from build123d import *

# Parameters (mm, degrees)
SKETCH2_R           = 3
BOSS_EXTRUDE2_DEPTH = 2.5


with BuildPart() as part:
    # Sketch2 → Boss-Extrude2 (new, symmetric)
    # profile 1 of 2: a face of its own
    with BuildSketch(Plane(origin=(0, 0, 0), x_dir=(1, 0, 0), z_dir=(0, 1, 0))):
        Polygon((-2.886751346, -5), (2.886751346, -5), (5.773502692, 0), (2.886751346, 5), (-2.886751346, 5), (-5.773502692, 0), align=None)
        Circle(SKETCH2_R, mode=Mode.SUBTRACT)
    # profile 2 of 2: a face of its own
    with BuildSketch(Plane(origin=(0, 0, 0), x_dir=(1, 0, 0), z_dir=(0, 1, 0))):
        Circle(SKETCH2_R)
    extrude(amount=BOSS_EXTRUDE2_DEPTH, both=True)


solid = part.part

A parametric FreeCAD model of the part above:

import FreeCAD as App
import Part
import Sketcher
from FreeCAD import Vector
Q = App.Units.Quantity

doc = App.newDocument("Part")
body = doc.addObject("PartDesign::Body", "Body")

sketch1 = doc.addObject("Sketcher::SketchObject", "Sketch")
body.addObject(sketch1)
sketch1.AttachmentSupport = (doc.XZ_Plane, [""])
sketch1.MapMode = "FlatFace"
sketch1.addGeometry([
    Part.LineSegment(Vector(-3, 5, 0), Vector(3, 5, 0)),
    Part.LineSegment(Vector(3, 5, 0), Vector(6, 0, 0)),
    Part.LineSegment(Vector(6, 0, 0), Vector(3, -5, 0)),
    Part.LineSegment(Vector(3, -5, 0), Vector(-3, -5, 0)),
    Part.LineSegment(Vector(-3, -5, 0), Vector(-6, 0, 0)),
    Part.LineSegment(Vector(-6, 0, 0), Vector(-3, 5, 0)),
], False)
sketch1.addConstraint([
    Sketcher.Constraint("Coincident", 0, 2, 1, 1),
    Sketcher.Constraint("Coincident", 1, 2, 2, 1),
    Sketcher.Constraint("Coincident", 2, 2, 3, 1),
    Sketcher.Constraint("Coincident", 3, 2, 4, 1),
    Sketcher.Constraint("Coincident", 4, 2, 5, 1),
    Sketcher.Constraint("Coincident", 5, 2, 0, 1),
    Sketcher.Constraint("Horizontal", 0),
    Sketcher.Constraint("Horizontal", 3),
    Sketcher.Constraint("Symmetric", 0, 2, 3, 2, -1, 1),
    Sketcher.Constraint("Symmetric", 1, 2, 4, 2, -1, 1),
    Sketcher.Constraint("PointOnObject", 1, 2, -1),
    Sketcher.Constraint("Parallel", 2, 5),
    Sketcher.Constraint("Vertical", 0, 2, 2, 2),
    Sketcher.Constraint("Angle", 1, Q("-60 deg")),
    Sketcher.Constraint("DistanceY", -1, 1, 0, 2, Q("5 mm")),
    Sketcher.Constraint("DistanceX", 0, 1, 0, 2, Q("5.773503 mm")),
])
pad1 = doc.addObject("PartDesign::Pad", "Pad")
body.addObject(pad1)
pad1.Profile = sketch1
pad1.Length = 5
pad1.Midplane = True

doc.recompute()
